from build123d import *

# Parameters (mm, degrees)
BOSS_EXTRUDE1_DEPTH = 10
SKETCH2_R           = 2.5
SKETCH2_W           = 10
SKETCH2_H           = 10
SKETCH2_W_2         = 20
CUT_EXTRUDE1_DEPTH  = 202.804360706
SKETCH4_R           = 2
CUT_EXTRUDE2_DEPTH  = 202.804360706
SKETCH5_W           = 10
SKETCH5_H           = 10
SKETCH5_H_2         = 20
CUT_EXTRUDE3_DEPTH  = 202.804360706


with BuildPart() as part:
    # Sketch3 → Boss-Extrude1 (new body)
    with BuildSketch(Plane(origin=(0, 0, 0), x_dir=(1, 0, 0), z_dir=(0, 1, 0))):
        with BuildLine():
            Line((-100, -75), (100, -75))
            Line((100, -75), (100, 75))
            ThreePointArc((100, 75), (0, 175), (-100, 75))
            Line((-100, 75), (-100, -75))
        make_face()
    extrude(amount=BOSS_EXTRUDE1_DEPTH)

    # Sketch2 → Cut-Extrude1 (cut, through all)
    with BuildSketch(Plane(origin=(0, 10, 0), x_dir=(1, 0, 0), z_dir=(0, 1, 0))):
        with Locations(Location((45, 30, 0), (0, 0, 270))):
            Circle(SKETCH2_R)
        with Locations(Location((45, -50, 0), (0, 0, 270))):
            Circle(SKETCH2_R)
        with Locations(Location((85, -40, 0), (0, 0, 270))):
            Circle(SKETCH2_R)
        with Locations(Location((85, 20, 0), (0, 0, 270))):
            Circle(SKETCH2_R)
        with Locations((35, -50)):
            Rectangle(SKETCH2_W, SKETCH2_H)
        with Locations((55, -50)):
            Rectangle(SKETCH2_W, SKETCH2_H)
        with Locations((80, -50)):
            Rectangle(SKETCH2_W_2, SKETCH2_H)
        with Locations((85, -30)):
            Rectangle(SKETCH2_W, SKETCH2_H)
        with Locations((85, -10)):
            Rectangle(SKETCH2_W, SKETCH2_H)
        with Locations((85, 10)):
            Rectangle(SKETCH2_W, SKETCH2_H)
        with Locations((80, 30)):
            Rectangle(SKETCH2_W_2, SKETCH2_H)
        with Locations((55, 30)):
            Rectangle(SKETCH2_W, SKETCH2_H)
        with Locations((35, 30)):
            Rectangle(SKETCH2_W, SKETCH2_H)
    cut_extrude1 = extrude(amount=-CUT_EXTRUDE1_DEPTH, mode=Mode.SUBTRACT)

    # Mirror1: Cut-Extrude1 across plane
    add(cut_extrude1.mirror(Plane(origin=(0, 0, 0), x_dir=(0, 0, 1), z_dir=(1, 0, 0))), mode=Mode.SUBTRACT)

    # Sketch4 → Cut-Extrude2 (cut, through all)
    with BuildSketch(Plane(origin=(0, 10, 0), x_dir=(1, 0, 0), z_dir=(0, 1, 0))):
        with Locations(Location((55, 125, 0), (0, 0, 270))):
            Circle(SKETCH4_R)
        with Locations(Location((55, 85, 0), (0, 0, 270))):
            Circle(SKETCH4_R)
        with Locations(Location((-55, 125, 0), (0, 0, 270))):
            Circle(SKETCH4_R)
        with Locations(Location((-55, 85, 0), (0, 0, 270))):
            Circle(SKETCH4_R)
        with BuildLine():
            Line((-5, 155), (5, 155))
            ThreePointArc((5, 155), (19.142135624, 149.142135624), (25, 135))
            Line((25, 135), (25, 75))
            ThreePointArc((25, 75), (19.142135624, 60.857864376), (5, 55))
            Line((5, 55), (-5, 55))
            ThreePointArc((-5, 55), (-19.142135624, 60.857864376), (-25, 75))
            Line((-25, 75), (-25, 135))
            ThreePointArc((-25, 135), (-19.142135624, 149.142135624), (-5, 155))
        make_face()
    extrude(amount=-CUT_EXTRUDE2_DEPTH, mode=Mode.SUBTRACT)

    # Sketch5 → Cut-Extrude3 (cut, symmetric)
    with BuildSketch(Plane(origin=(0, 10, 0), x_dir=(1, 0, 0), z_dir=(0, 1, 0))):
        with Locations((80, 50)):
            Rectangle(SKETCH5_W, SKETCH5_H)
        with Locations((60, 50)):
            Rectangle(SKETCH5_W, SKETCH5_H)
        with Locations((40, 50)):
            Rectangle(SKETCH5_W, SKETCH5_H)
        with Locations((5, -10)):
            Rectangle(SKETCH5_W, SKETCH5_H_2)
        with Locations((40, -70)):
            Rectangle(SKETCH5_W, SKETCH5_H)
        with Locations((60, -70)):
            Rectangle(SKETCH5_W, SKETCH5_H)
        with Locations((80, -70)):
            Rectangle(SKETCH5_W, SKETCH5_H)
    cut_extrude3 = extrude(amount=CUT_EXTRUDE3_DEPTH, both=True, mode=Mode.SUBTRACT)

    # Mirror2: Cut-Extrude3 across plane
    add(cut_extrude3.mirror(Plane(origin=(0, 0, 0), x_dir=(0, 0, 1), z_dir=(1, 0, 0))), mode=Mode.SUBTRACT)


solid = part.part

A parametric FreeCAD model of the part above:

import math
import FreeCAD as App
import Part
import Sketcher

doc = App.newDocument("Part")
body = doc.addObject("PartDesign::Body", "Body")

# Sketch on XZ plane
sketch1 = body.newObject("Sketcher::SketchObject", "Sketch")
sketch1.AttachmentSupport = (doc.getObject("XZ_Plane"), [""])
sketch1.MapMode = "FlatFace"
sketch1.addGeometry(Part.LineSegment(App.Vector(-100, 75, 0), App.Vector(100, 75, 0)), False)
sketch1.addGeometry(Part.LineSegment(App.Vector(100, 75, 0), App.Vector(100, -75, 0)), False)
sketch1.addGeometry(Part.ArcOfCircle(Part.Circle(App.Vector(0, -75, 0), App.Vector(0, 0, 1), 100), math.radians(180), math.radians(360)), False)
sketch1.addGeometry(Part.LineSegment(App.Vector(-100, -75, 0), App.Vector(-100, 75, 0)), False)
sketch1.addConstraint(Sketcher.Constraint("Coincident", 0, 2, 1, 1))
sketch1.addConstraint(Sketcher.Constraint("Tangent", 1, 2, 2, 2))
sketch1.addConstraint(Sketcher.Constraint("Tangent", 2, 1, 3, 1))
sketch1.addConstraint(Sketcher.Constraint("Coincident", 3, 2, 0, 1))
sketch1.addConstraint(Sketcher.Constraint("Horizontal", 0))
sketch1.addConstraint(Sketcher.Constraint("Vertical", 1))
sketch1.addConstraint(Sketcher.Constraint("Vertical", 3))
sketch1.addConstraint(Sketcher.Constraint("Symmetric", 0, 2, 2, 1, -1, 1))
sketch1.addConstraint(Sketcher.Constraint("Radius", 2, 100.0))
sketch1.addConstraint(Sketcher.Constraint("DistanceY", 1, 2, 1, 1, 150.0))
pad1 = body.newObject("PartDesign::Pad", "Pad")
pad1.Profile = sketch1
pad1.Length = 10
pad1.Reversed = True

# Sketch on XZ plane
sketch2 = body.newObject("Sketcher::SketchObject", "Sketch001")
sketch2.AttachmentSupport = (doc.getObject("XZ_Plane"), [""])
sketch2.MapMode = "FlatFace"
sketch2.AttachmentOffset = App.Placement(App.Vector(0, 0, -10), App.Rotation())
sketch2.addGeometry(Part.Circle(App.Vector(45, -30, 0), App.Vector(0, 0, 1), 2.5), False)
sketch2.addGeometry(Part.Circle(App.Vector(45, 50, 0), App.Vector(0, 0, 1), 2.5), False)
sketch2.addGeometry(Part.Circle(App.Vector(85, 40, 0), App.Vector(0, 0, 1), 2.5), False)
sketch2.addGeometry(Part.Circle(App.Vector(85, -20, 0), App.Vector(0, 0, 1), 2.5), False)
sketch2.addGeometry(Part.LineSegment(App.Vector(30, 45, 0), App.Vector(30, 55, 0)), False)
sketch2.addGeometry(Part.LineSegment(App.Vector(30, 55, 0), App.Vector(40, 55, 0)), False)
sketch2.addGeometry(Part.LineSegment(App.Vector(40, 55, 0), App.Vector(40, 45, 0)), False)
sketch2.addGeometry(Part.LineSegment(App.Vector(40, 45, 0), App.Vector(30, 45, 0)), False)
sketch2.addGeometry(Part.LineSegment(App.Vector(50, 45, 0), App.Vector(50, 55, 0)), False)
sketch2.addGeometry(Part.LineSegment(App.Vector(50, 55, 0), App.Vector(60, 55, 0)), False)
sketch2.addGeometry(Part.LineSegment(App.Vector(60, 55, 0), App.Vector(60, 45, 0)), False)
sketch2.addGeometry(Part.LineSegment(App.Vector(60, 45, 0), App.Vector(50, 45, 0)), False)
sketch2.addGeometry(Part.LineSegment(App.Vector(70, 45, 0), App.Vector(70, 55, 0)), False)
sketch2.addGeometry(Part.LineSegment(App.Vector(70, 55, 0), App.Vector(90, 55, 0)), False)
sketch2.addGeometry(Part.LineSegment(App.Vector(90, 55, 0), App.Vector(90, 45, 0)), False)
sketch2.addGeometry(Part.LineSegment(App.Vector(90, 45, 0), App.Vector(70, 45, 0)), False)
sketch2.addGeometry(Part.LineSegment(App.Vector(80, 25, 0), App.Vector(80, 35, 0)), False)
sketch2.addGeometry(Part.LineSegment(App.Vector(80, 35, 0), App.Vector(90, 35, 0)), False)
sketch2.addGeometry(Part.LineSegment(App.Vector(90, 35, 0), App.Vector(90, 25, 0)), False)
sketch2.addGeometry(Part.LineSegment(App.Vector(90, 25, 0), App.Vector(80, 25, 0)), False)
sketch2.addGeometry(Part.LineSegment(App.Vector(80, 5, 0), App.Vector(80, 15, 0)), False)
sketch2.addGeometry(Part.LineSegment(App.Vector(80, 15, 0), App.Vector(90, 15, 0)), False)
sketch2.addGeometry(Part.LineSegment(App.Vector(90, 15, 0), App.Vector(90, 5, 0)), False)
sketch2.addGeometry(Part.LineSegment(App.Vector(90, 5, 0), App.Vector(80, 5, 0)), False)
sketch2.addGeometry(Part.LineSegment(App.Vector(80, -15, 0), App.Vector(80, -5, 0)), False)
sketch2.addGeometry(Part.LineSegment(App.Vector(80, -5, 0), App.Vector(90, -5, 0)), False)
sketch2.addGeometry(Part.LineSegment(App.Vector(90, -5, 0), App.Vector(90, -15, 0)), False)
sketch2.addGeometry(Part.LineSegment(App.Vector(90, -15, 0), App.Vector(80, -15, 0)), False)
sketch2.addGeometry(Part.LineSegment(App.Vector(70, -35, 0), App.Vector(70, -25, 0)), False)
sketch2.addGeometry(Part.LineSegment(App.Vector(70, -25, 0), App.Vector(90, -25, 0)), False)
sketch2.addGeometry(Part.LineSegment(App.Vector(90, -25, 0), App.Vector(90, -35, 0)), False)
sketch2.addGeometry(Part.LineSegment(App.Vector(90, -35, 0), App.Vector(70, -35, 0)), False)
sketch2.addGeometry(Part.LineSegment(App.Vector(50, -35, 0), App.Vector(50, -25, 0)), False)
sketch2.addGeometry(Part.LineSegment(App.Vector(50, -25, 0), App.Vector(60, -25, 0)), False)
sketch2.addGeometry(Part.LineSegment(App.Vector(60, -25, 0), App.Vector(60, -35, 0)), False)
sketch2.addGeometry(Part.LineSegment(App.Vector(60, -35, 0), App.Vector(50, -35, 0)), False)
sketch2.addGeometry(Part.LineSegment(App.Vector(30, -35, 0), App.Vector(30, -25, 0)), False)
sketch2.addGeometry(Part.LineSegment(App.Vector(30, -25, 0), App.Vector(40, -25, 0)), False)
sketch2.addGeometry(Part.LineSegment(App.Vector(40, -25, 0), App.Vector(40, -35, 0)), False)
sketch2.addGeometry(Part.LineSegment(App.Vector(40, -35, 0), App.Vector(30, -35, 0)), False)
sketch2.addConstraint(Sketcher.Constraint("Coincident", 4, 2, 5, 1))
sketch2.addConstraint(Sketcher.Constraint("Coincident", 5, 2, 6, 1))
sketch2.addConstraint(Sketcher.Constraint("Coincident", 6, 2, 7, 1))
sketch2.addConstraint(Sketcher.Constraint("Coincident", 7, 2, 4, 1))
sketch2.addConstraint(Sketcher.Constraint("Coincident", 8, 2, 9, 1))
sketch2.addConstraint(Sketcher.Constraint("Coincident", 9, 2, 10, 1))
sketch2.addConstraint(Sketcher.Constraint("Coincident", 10, 2, 11, 1))
sketch2.addConstraint(Sketcher.Constraint("Coincident", 11, 2, 8, 1))
sketch2.addConstraint(Sketcher.Constraint("Coincident", 12, 2, 13, 1))
sketch2.addConstraint(Sketcher.Constraint("Coincident", 13, 2, 14, 1))
sketch2.addConstraint(Sketcher.Constraint("Coincident", 14, 2, 15, 1))
sketch2.addConstraint(Sketcher.Constraint("Coincident", 15, 2, 12, 1))
sketch2.addConstraint(Sketcher.Constraint("Coincident", 16, 2, 17, 1))
sketch2.addConstraint(Sketcher.Constraint("Coincident", 17, 2, 18, 1))
sketch2.addConstraint(Sketcher.Constraint("Coincident", 18, 2, 19, 1))
sketch2.addConstraint(Sketcher.Constraint("Coincident", 19, 2, 16, 1))
sketch2.addConstraint(Sketcher.Constraint("Coincident", 20, 2, 21, 1))
sketch2.addConstraint(Sketcher.Constraint("Coincident", 21, 2, 22, 1))
sketch2.addConstraint(Sketcher.Constraint("Coincident", 22, 2, 23, 1))
sketch2.addConstraint(Sketcher.Constraint("Coincident", 23, 2, 20, 1))
sketch2.addConstraint(Sketcher.Constraint("Coincident", 24, 2, 25, 1))
sketch2.addConstraint(Sketcher.Constraint("Coincident", 25, 2, 26, 1))
sketch2.addConstraint(Sketcher.Constraint("Coincident", 26, 2, 27, 1))
sketch2.addConstraint(Sketcher.Constraint("Coincident", 27, 2, 24, 1))
sketch2.addConstraint(Sketcher.Constraint("Coincident", 28, 2, 29, 1))
sketch2.addConstraint(Sketcher.Constraint("Coincident", 29, 2, 30, 1))
sketch2.addConstraint(Sketcher.Constraint("Coincident", 30, 2, 31, 1))
sketch2.addConstraint(Sketcher.Constraint("Coincident", 31, 2, 28, 1))
sketch2.addConstraint(Sketcher.Constraint("Coincident", 32, 2, 33, 1))
sketch2.addConstraint(Sketcher.Constraint("Coincident", 33, 2, 34, 1))
sketch2.addConstraint(Sketcher.Constraint("Coincident", 34, 2, 35, 1))
sketch2.addConstraint(Sketcher.Constraint("Coincident", 35, 2, 32, 1))
sketch2.addConstraint(Sketcher.Constraint("Coincident", 36, 2, 37, 1))
sketch2.addConstraint(Sketcher.Constraint("Coincident", 37, 2, 38, 1))
sketch2.addConstraint(Sketcher.Constraint("Coincident", 38, 2, 39, 1))
sketch2.addConstraint(Sketcher.Constraint("Coincident", 39, 2, 36, 1))
sketch2.addConstraint(Sketcher.Constraint("Vertical", 4))
sketch2.addConstraint(Sketcher.Constraint("Horizontal", 5))
sketch2.addConstraint(Sketcher.Constraint("Vertical", 6))
sketch2.addConstraint(Sketcher.Constraint("Horizontal", 7))
sketch2.addConstraint(Sketcher.Constraint("Vertical", 8))
sketch2.addConstraint(Sketcher.Constraint("Horizontal", 9))
sketch2.addConstraint(Sketcher.Constraint("Vertical", 10))
sketch2.addConstraint(Sketcher.Constraint("Horizontal", 11))
sketch2.addConstraint(Sketcher.Constraint("Vertical", 12))
sketch2.addConstraint(Sketcher.Constraint("Horizontal", 13))
sketch2.addConstraint(Sketcher.Constraint("Vertical", 14))
sketch2.addConstraint(Sketcher.Constraint("Horizontal", 15))
sketch2.addConstraint(Sketcher.Constraint("Vertical", 16))
sketch2.addConstraint(Sketcher.Constraint("Horizontal", 17))
sketch2.addConstraint(Sketcher.Constraint("Vertical", 18))
sketch2.addConstraint(Sketcher.Constraint("Horizontal", 19))
sketch2.addConstraint(Sketcher.Constraint("Vertical", 20))
sketch2.addConstraint(Sketcher.Constraint("Horizontal", 21))
sketch2.addConstraint(Sketcher.Constraint("Vertical", 22))
sketch2.addConstraint(Sketcher.Constraint("Horizontal", 23))
sketch2.addConstraint(Sketcher.Constraint("Vertical", 24))
sketch2.addConstraint(Sketcher.Constraint("Horizontal", 25))
sketch2.addConstraint(Sketcher.Constraint("Vertical", 26))
sketch2.addConstraint(Sketcher.Constraint("Horizontal", 27))
sketch2.addConstraint(Sketcher.Constraint("Vertical", 28))
sketch2.addConstraint(Sketcher.Constraint("Horizontal", 29))
sketch2.addConstraint(Sketcher.Constraint("Vertical", 30))
sketch2.addConstraint(Sketcher.Constraint("Horizontal", 31))
sketch2.addConstraint(Sketcher.Constraint("Vertical", 32))
sketch2.addConstraint(Sketcher.Constraint("Horizontal", 33))
sketch2.addConstraint(Sketcher.Constraint("Vertical", 34))
sketch2.addConstraint(Sketcher.Constraint("Horizontal", 35))
sketch2.addConstraint(Sketcher.Constraint("Vertical", 36))
sketch2.addConstraint(Sketcher.Constraint("Horizontal", 37))
sketch2.addConstraint(Sketcher.Constraint("Vertical", 38))
sketch2.addConstraint(Sketcher.Constraint("Horizontal", 39))
sketch2.addConstraint(Sketcher.Constraint("Equal", 0, 1))
sketch2.addConstraint(Sketcher.Constraint("Equal", 1, 2))
sketch2.addConstraint(Sketcher.Constraint("Equal", 2, 3))
sketch2.addConstraint(Sketcher.Constraint("Symmetric", 23, 2, 24, 2, -1))
sketch2.addConstraint(Sketcher.Constraint("Symmetric", 21, 2, 26, 2, -1))
sketch2.addConstraint(Sketcher.Constraint("Symmetric", 18, 2, 29, 2, -1))
sketch2.addConstraint(Sketcher.Constraint("Horizontal", 5, 2, 8, 2))
sketch2.addConstraint(Sketcher.Constraint("Horizontal", 7, 2, 10, 2))
sketch2.addConstraint(Sketcher.Constraint("Horizontal", 9, 2, 12, 2))
sketch2.addConstraint(Sketcher.Constraint("Horizontal", 11, 2, 14, 2))
sketch2.addConstraint(Sketcher.Constraint("Horizontal", 29, 2, 32, 2))
sketch2.addConstraint(Sketcher.Constraint("Horizontal", 31, 2, 34, 2))
sketch2.addConstraint(Sketcher.Constraint("Horizontal", 33, 2, 36, 2))
sketch2.addConstraint(Sketcher.Constraint("Horizontal", 35, 2, 38, 2))
sketch2.addConstraint(Sketcher.Constraint("Vertical", 0, 3, 1, 3))
sketch2.addConstraint(Sketcher.Constraint("Vertical", 2, 3, 3, 3))
sketch2.addConstraint(Sketcher.Constraint("Vertical", 14, 2, 17, 2))
sketch2.addConstraint(Sketcher.Constraint("Vertical", 19, 2, 20, 2))
sketch2.addConstraint(Sketcher.Constraint("Vertical", 18, 2, 21, 2))
sketch2.addConstraint(Sketcher.Constraint("Vertical", 15, 2, 28, 2))
sketch2.addConstraint(Sketcher.Constraint("Vertical", 11, 2, 32, 2))
sketch2.addConstraint(Sketcher.Constraint("Vertical", 10, 2, 33, 2))
sketch2.addConstraint(Sketcher.Constraint("Vertical", 7, 2, 36, 2))
sketch2.addConstraint(Sketcher.Constraint("Vertical", 6, 2, 37, 2))
sketch2.addConstraint(Sketcher.Constraint("Equal", 7, 9))
sketch2.addConstraint(Sketcher.Constraint("Equal", 11, 17))
sketch2.addConstraint(Sketcher.Constraint("Equal", 39, 4))
sketch2.addConstraint(Sketcher.Constraint("Equal", 14, 16))
sketch2.addConstraint(Sketcher.Constraint("Equal", 18, 20))
sketch2.addConstraint(Sketcher.Constraint("Equal", 26, 28))
sketch2.addConstraint(Sketcher.Constraint("Diameter", 0, 5.0))
sketch2.addConstraint(Sketcher.Constraint("DistanceX", 5, 1, 5, 2, 10.0))
sketch2.addConstraint(Sketcher.Constraint("DistanceX", 13, 1, 13, 2, 20.0))
sketch2.addConstraint(Sketcher.Constraint("DistanceX", -1, 1, 0, 3, 45.0))
sketch2.addConstraint(Sketcher.Constraint("DistanceY", 0, 3, -1, 1, 30.0))
sketch2.addConstraint(Sketcher.Constraint("DistanceY", -1, 1, 1, 3, 50.0))
sketch2.addConstraint(Sketcher.Constraint("DistanceX", -1, 1, 2, 3, 85.0))
sketch2.addConstraint(Sketcher.Constraint("DistanceY", -1, 1, 2, 3, 40.0))
sketch2.addConstraint(Sketcher.Constraint("DistanceY", 3, 3, -1, 1, 20.0))
sketch2.addConstraint(Sketcher.Constraint("DistanceX", -1, 1, 4, 2, 30.0))
sketch2.addConstraint(Sketcher.Constraint("DistanceY", -1, 1, 4, 2, 55.0))
sketch2.addConstraint(Sketcher.Constraint("DistanceX", -1, 1, 8, 2, 50.0))
sketch2.addConstraint(Sketcher.Constraint("DistanceX", -1, 1, 12, 2, 70.0))
sketch2.addConstraint(Sketcher.Constraint("DistanceY", -1, 1, 16, 2, 35.0))
sketch2.addConstraint(Sketcher.Constraint("DistanceY", -1, 1, 20, 2, 15.0))
pocket1 = body.newObject("PartDesign::Pocket", "Pocket")
pocket1.Profile = sketch2
pocket1.Type = "ThroughAll"
pocket1.Reversed = True
doc.recompute()

mirrored = body.newObject("PartDesign::Mirrored", "Mirrored")
mirrored.Originals = [pocket1]
mirrored.MirrorPlane = (doc.getObject("YZ_Plane"), [""])
body.Tip = mirrored

# Sketch on XZ plane
sketch3 = body.newObject("Sketcher::SketchObject", "Sketch002")
sketch3.AttachmentSupport = (doc.getObject("XZ_Plane"), [""])
sketch3.MapMode = "FlatFace"
sketch3.AttachmentOffset = App.Placement(App.Vector(0, 0, -10), App.Rotation())
sketch3.addGeometry(Part.Circle(App.Vector(55, -125, 0), App.Vector(0, 0, 1), 2), False)
sketch3.addGeometry(Part.Circle(App.Vector(55, -85, 0), App.Vector(0, 0, 1), 2), False)
sketch3.addGeometry(Part.Circle(App.Vector(-55, -125, 0), App.Vector(0, 0, 1), 2), False)
sketch3.addGeometry(Part.Circle(App.Vector(-55, -85, 0), App.Vector(0, 0, 1), 2), False)
sketch3.addGeometry(Part.LineSegment(App.Vector(5, -155, 0), App.Vector(-5, -155, 0)), False)
sketch3.addGeometry(Part.ArcOfCircle(Part.Circle(App.Vector(-5, -135, 0), App.Vector(0, 0, 1), 20), math.radians(180), math.radians(270)), False)
sketch3.addGeometry(Part.LineSegment(App.Vector(-25, -135, 0), App.Vector(-25, -75, 0)), False)
sketch3.addGeometry(Part.ArcOfCircle(Part.Circle(App.Vector(-5, -75, 0), App.Vector(0, 0, 1), 20), math.radians(90), math.radians(180)), False)
sketch3.addGeometry(Part.LineSegment(App.Vector(-5, -55, 0), App.Vector(5, -55, 0)), False)
sketch3.addGeometry(Part.ArcOfCircle(Part.Circle(App.Vector(5, -75, 0), App.Vector(0, 0, 1), 20), math.radians(0), math.radians(90)), False)
sketch3.addGeometry(Part.LineSegment(App.Vector(25, -75, 0), App.Vector(25, -135, 0)), False)
sketch3.addGeometry(Part.ArcOfCircle(Part.Circle(App.Vector(5, -135, 0), App.Vector(0, 0, 1), 20), math.radians(-90), math.radians(0)), False)
sketch3.addConstraint(Sketcher.Constraint("Tangent", 4, 2, 5, 2))
sketch3.addConstraint(Sketcher.Constraint("Tangent", 5, 1, 6, 1))
sketch3.addConstraint(Sketcher.Constraint("Tangent", 6, 2, 7, 2))
sketch3.addConstraint(Sketcher.Constraint("Tangent", 7, 1, 8, 1))
sketch3.addConstraint(Sketcher.Constraint("Tangent", 8, 2, 9, 2))
sketch3.addConstraint(Sketcher.Constraint("Tangent", 9, 1, 10, 1))
sketch3.addConstraint(Sketcher.Constraint("Tangent", 10, 2, 11, 2))
sketch3.addConstraint(Sketcher.Constraint("Tangent", 11, 1, 4, 1))
sketch3.addConstraint(Sketcher.Constraint("Horizontal", 4))
sketch3.addConstraint(Sketcher.Constraint("Vertical", 6))
sketch3.addConstraint(Sketcher.Constraint("Horizontal", 8))
sketch3.addConstraint(Sketcher.Constraint("Vertical", 10))
sketch3.addConstraint(Sketcher.Constraint("Equal", 0, 1))
sketch3.addConstraint(Sketcher.Constraint("Equal", 1, 2))
sketch3.addConstraint(Sketcher.Constraint("Equal", 2, 3))
sketch3.addConstraint(Sketcher.Constraint("Equal", 5, 7))
sketch3.addConstraint(Sketcher.Constraint("Equal", 7, 9))
sketch3.addConstraint(Sketcher.Constraint("Equal", 9, 11))
sketch3.addConstraint(Sketcher.Constraint("Symmetric", 0, 3, 2, 3, -2))
sketch3.addConstraint(Sketcher.Constraint("Symmetric", 1, 3, 3, 3, -2))
sketch3.addConstraint(Sketcher.Constraint("Vertical", 0, 3, 1, 3))
sketch3.addConstraint(Sketcher.Constraint("Diameter", 0, 4.0))
sketch3.addConstraint(Sketcher.Constraint("Radius", 5, 20.0))
sketch3.addConstraint(Sketcher.Constraint("DistanceX", 4, 2, 4, 1, 10.0))
sketch3.addConstraint(Sketcher.Constraint("DistanceY", 6, 1, 6, 2, 60.0))
sketch3.addConstraint(Sketcher.Constraint("DistanceX", -1, 1, 0, 3, 55.0))
sketch3.addConstraint(Sketcher.Constraint("DistanceY", 0, 3, -1, 1, 125.0))
sketch3.addConstraint(Sketcher.Constraint("DistanceY", 1, 3, -1, 1, 85.0))
sketch3.addConstraint(Sketcher.Constraint("DistanceX", 5, 3, -1, 1, 5.0))
sketch3.addConstraint(Sketcher.Constraint("DistanceY", 5, 3, -1, 1, 135.0))
pocket2 = body.newObject("PartDesign::Pocket", "Pocket001")
pocket2.Profile = sketch3
pocket2.Type = "ThroughAll"
pocket2.Reversed = True

# Sketch on XZ plane
sketch4 = body.newObject("Sketcher::SketchObject", "Sketch003")
sketch4.AttachmentSupport = (doc.getObject("XZ_Plane"), [""])
sketch4.MapMode = "FlatFace"
sketch4.AttachmentOffset = App.Placement(App.Vector(0, 0, -10), App.Rotation())
sketch4.addGeometry(Part.LineSegment(App.Vector(75, -55, 0), App.Vector(75, -45, 0)), False)
sketch4.addGeometry(Part.LineSegment(App.Vector(75, -45, 0), App.Vector(85, -45, 0)), False)
sketch4.addGeometry(Part.LineSegment(App.Vector(85, -45, 0), App.Vector(85, -55, 0)), False)
sketch4.addGeometry(Part.LineSegment(App.Vector(85, -55, 0), App.Vector(75, -55, 0)), False)
sketch4.addGeometry(Part.LineSegment(App.Vector(55, -55, 0), App.Vector(55, -45, 0)), False)
sketch4.addGeometry(Part.LineSegment(App.Vector(55, -45, 0), App.Vector(65, -45, 0)), False)
sketch4.addGeometry(Part.LineSegment(App.Vector(65, -45, 0), App.Vector(65, -55, 0)), False)
sketch4.addGeometry(Part.LineSegment(App.Vector(65, -55, 0), App.Vector(55, -55, 0)), False)
sketch4.addGeometry(Part.LineSegment(App.Vector(35, -55, 0), App.Vector(35, -45, 0)), False)
sketch4.addGeometry(Part.LineSegment(App.Vector(35, -45, 0), App.Vector(45, -45, 0)), False)
sketch4.addGeometry(Part.LineSegment(App.Vector(45, -45, 0), App.Vector(45, -55, 0)), False)
sketch4.addGeometry(Part.LineSegment(App.Vector(45, -55, 0), App.Vector(35, -55, 0)), False)
sketch4.addGeometry(Part.LineSegment(App.Vector(0, 0, 0), App.Vector(0, 20, 0)), False)
sketch4.addGeometry(Part.LineSegment(App.Vector(0, 20, 0), App.Vector(10, 20, 0)), False)
sketch4.addGeometry(Part.LineSegment(App.Vector(10, 20, 0), App.Vector(10, 0, 0)), False)
sketch4.addGeometry(Part.LineSegment(App.Vector(10, 0, 0), App.Vector(0, 0, 0)), False)
sketch4.addGeometry(Part.LineSegment(App.Vector(35, 65, 0), App.Vector(35, 75, 0)), False)
sketch4.addGeometry(Part.LineSegment(App.Vector(35, 75, 0), App.Vector(45, 75, 0)), False)
sketch4.addGeometry(Part.LineSegment(App.Vector(45, 75, 0), App.Vector(45, 65, 0)), False)
sketch4.addGeometry(Part.LineSegment(App.Vector(45, 65, 0), App.Vector(35, 65, 0)), False)
sketch4.addGeometry(Part.LineSegment(App.Vector(55, 65, 0), App.Vector(55, 75, 0)), False)
sketch4.addGeometry(Part.LineSegment(App.Vector(55, 75, 0), App.Vector(65, 75, 0)), False)
sketch4.addGeometry(Part.LineSegment(App.Vector(65, 75, 0), App.Vector(65, 65, 0)), False)
sketch4.addGeometry(Part.LineSegment(App.Vector(65, 65, 0), App.Vector(55, 65, 0)), False)
sketch4.addGeometry(Part.LineSegment(App.Vector(75, 65, 0), App.Vector(75, 75, 0)), False)
sketch4.addGeometry(Part.LineSegment(App.Vector(75, 75, 0), App.Vector(85, 75, 0)), False)
sketch4.addGeometry(Part.LineSegment(App.Vector(85, 75, 0), App.Vector(85, 65, 0)), False)
sketch4.addGeometry(Part.LineSegment(App.Vector(85, 65, 0), App.Vector(75, 65, 0)), False)
sketch4.addConstraint(Sketcher.Constraint("Coincident", 0, 2, 1, 1))
sketch4.addConstraint(Sketcher.Constraint("Coincident", 1, 2, 2, 1))
sketch4.addConstraint(Sketcher.Constraint("Coincident", 2, 2, 3, 1))
sketch4.addConstraint(Sketcher.Constraint("Coincident", 3, 2, 0, 1))
sketch4.addConstraint(Sketcher.Constraint("Coincident", 4, 2, 5, 1))
sketch4.addConstraint(Sketcher.Constraint("Coincident", 5, 2, 6, 1))
sketch4.addConstraint(Sketcher.Constraint("Coincident", 6, 2, 7, 1))
sketch4.addConstraint(Sketcher.Constraint("Coincident", 7, 2, 4, 1))
sketch4.addConstraint(Sketcher.Constraint("Coincident", 8, 2, 9, 1))
sketch4.addConstraint(Sketcher.Constraint("Coincident", 9, 2, 10, 1))
sketch4.addConstraint(Sketcher.Constraint("Coincident", 10, 2, 11, 1))
sketch4.addConstraint(Sketcher.Constraint("Coincident", 11, 2, 8, 1))
sketch4.addConstraint(Sketcher.Constraint("Coincident", 12, 2, 13, 1))
sketch4.addConstraint(Sketcher.Constraint("Coincident", 13, 2, 14, 1))
sketch4.addConstraint(Sketcher.Constraint("Coincident", 14, 2, 15, 1))
sketch4.addConstraint(Sketcher.Constraint("Coincident", 15, 2, 12, 1))
sketch4.addConstraint(Sketcher.Constraint("Coincident", 16, 2, 17, 1))
sketch4.addConstraint(Sketcher.Constraint("Coincident", 17, 2, 18, 1))
sketch4.addConstraint(Sketcher.Constraint("Coincident", 18, 2, 19, 1))
sketch4.addConstraint(Sketcher.Constraint("Coincident", 19, 2, 16, 1))
sketch4.addConstraint(Sketcher.Constraint("Coincident", 20, 2, 21, 1))
sketch4.addConstraint(Sketcher.Constraint("Coincident", 21, 2, 22, 1))
sketch4.addConstraint(Sketcher.Constraint("Coincident", 22, 2, 23, 1))
sketch4.addConstraint(Sketcher.Constraint("Coincident", 23, 2, 20, 1))
sketch4.addConstraint(Sketcher.Constraint("Coincident", 24, 2, 25, 1))
sketch4.addConstraint(Sketcher.Constraint("Coincident", 25, 2, 26, 1))
sketch4.addConstraint(Sketcher.Constraint("Coincident", 26, 2, 27, 1))
sketch4.addConstraint(Sketcher.Constraint("Coincident", 27, 2, 24, 1))
sketch4.addConstraint(Sketcher.Constraint("Vertical", 0))
sketch4.addConstraint(Sketcher.Constraint("Horizontal", 1))
sketch4.addConstraint(Sketcher.Constraint("Vertical", 2))
sketch4.addConstraint(Sketcher.Constraint("Horizontal", 3))
sketch4.addConstraint(Sketcher.Constraint("Vertical", 4))
sketch4.addConstraint(Sketcher.Constraint("Horizontal", 5))
sketch4.addConstraint(Sketcher.Constraint("Vertical", 6))
sketch4.addConstraint(Sketcher.Constraint("Horizontal", 7))
sketch4.addConstraint(Sketcher.Constraint("Vertical", 8))
sketch4.addConstraint(Sketcher.Constraint("Horizontal", 9))
sketch4.addConstraint(Sketcher.Constraint("Vertical", 10))
sketch4.addConstraint(Sketcher.Constraint("Horizontal", 11))
sketch4.addConstraint(Sketcher.Constraint("Vertical", 12))
sketch4.addConstraint(Sketcher.Constraint("Horizontal", 13))
sketch4.addConstraint(Sketcher.Constraint("Vertical", 14))
sketch4.addConstraint(Sketcher.Constraint("Horizontal", 15))
sketch4.addConstraint(Sketcher.Constraint("Vertical", 16))
sketch4.addConstraint(Sketcher.Constraint("Horizontal", 17))
sketch4.addConstraint(Sketcher.Constraint("Vertical", 18))
sketch4.addConstraint(Sketcher.Constraint("Horizontal", 19))
sketch4.addConstraint(Sketcher.Constraint("Vertical", 20))
sketch4.addConstraint(Sketcher.Constraint("Horizontal", 21))
sketch4.addConstraint(Sketcher.Constraint("Vertical", 22))
sketch4.addConstraint(Sketcher.Constraint("Horizontal", 23))
sketch4.addConstraint(Sketcher.Constraint("Vertical", 24))
sketch4.addConstraint(Sketcher.Constraint("Horizontal", 25))
sketch4.addConstraint(Sketcher.Constraint("Vertical", 26))
sketch4.addConstraint(Sketcher.Constraint("Horizontal", 27))
sketch4.addConstraint(Sketcher.Constraint("Coincident", 15, 2, -1, 1))
sketch4.addConstraint(Sketcher.Constraint("Horizontal", 1, 2, 4, 2))
sketch4.addConstraint(Sketcher.Constraint("Horizontal", 3, 2, 6, 2))
sketch4.addConstraint(Sketcher.Constraint("Horizontal", 5, 2, 8, 2))
sketch4.addConstraint(Sketcher.Constraint("Horizontal", 7, 2, 10, 2))
sketch4.addConstraint(Sketcher.Constraint("Horizontal", 17, 2, 20, 2))
sketch4.addConstraint(Sketcher.Constraint("Horizontal", 19, 2, 22, 2))
sketch4.addConstraint(Sketcher.Constraint("Horizontal", 21, 2, 24, 2))
sketch4.addConstraint(Sketcher.Constraint("Horizontal", 23, 2, 26, 2))
sketch4.addConstraint(Sketcher.Constraint("Vertical", 11, 2, 16, 2))
sketch4.addConstraint(Sketcher.Constraint("Vertical", 10, 2, 17, 2))
sketch4.addConstraint(Sketcher.Constraint("Vertical", 7, 2, 20, 2))
sketch4.addConstraint(Sketcher.Constraint("Vertical", 6, 2, 21, 2))
sketch4.addConstraint(Sketcher.Constraint("Vertical", 3, 2, 24, 2))
sketch4.addConstraint(Sketcher.Constraint("Vertical", 2, 2, 25, 2))
sketch4.addConstraint(Sketcher.Constraint("Equal", 3, 5))
sketch4.addConstraint(Sketcher.Constraint("Equal", 7, 9))
sketch4.addConstraint(Sketcher.Constraint("Equal", 11, 13))
sketch4.addConstraint(Sketcher.Constraint("Equal", 27, 0))
sketch4.addConstraint(Sketcher.Constraint("Equal", 10, 16))
sketch4.addConstraint(Sketcher.Constraint("DistanceX", 1, 1, 1, 2, 10.0))
sketch4.addConstraint(Sketcher.Constraint("DistanceY", 12, 1, 12, 2, 20.0))
sketch4.addConstraint(Sketcher.Constraint("DistanceX", -1, 1, 0, 2, 75.0))
sketch4.addConstraint(Sketcher.Constraint("DistanceY", 0, 2, -1, 1, 45.0))
sketch4.addConstraint(Sketcher.Constraint("DistanceX", -1, 1, 4, 2, 55.0))
sketch4.addConstraint(Sketcher.Constraint("DistanceX", -1, 1, 8, 2, 35.0))
sketch4.addConstraint(Sketcher.Constraint("DistanceY", -1, 1, 16, 2, 75.0))
pocket3 = body.newObject("PartDesign::Pocket", "Pocket002")
pocket3.Profile = sketch4
pocket3.Length = 405.608721
pocket3.Midplane = True
doc.recompute()

mirrored2 = body.newObject("PartDesign::Mirrored", "Mirrored001")
mirrored2.Originals = [pocket3]
mirrored2.MirrorPlane = (doc.getObject("YZ_Plane"), [""])
body.Tip = mirrored2

doc.recompute()
